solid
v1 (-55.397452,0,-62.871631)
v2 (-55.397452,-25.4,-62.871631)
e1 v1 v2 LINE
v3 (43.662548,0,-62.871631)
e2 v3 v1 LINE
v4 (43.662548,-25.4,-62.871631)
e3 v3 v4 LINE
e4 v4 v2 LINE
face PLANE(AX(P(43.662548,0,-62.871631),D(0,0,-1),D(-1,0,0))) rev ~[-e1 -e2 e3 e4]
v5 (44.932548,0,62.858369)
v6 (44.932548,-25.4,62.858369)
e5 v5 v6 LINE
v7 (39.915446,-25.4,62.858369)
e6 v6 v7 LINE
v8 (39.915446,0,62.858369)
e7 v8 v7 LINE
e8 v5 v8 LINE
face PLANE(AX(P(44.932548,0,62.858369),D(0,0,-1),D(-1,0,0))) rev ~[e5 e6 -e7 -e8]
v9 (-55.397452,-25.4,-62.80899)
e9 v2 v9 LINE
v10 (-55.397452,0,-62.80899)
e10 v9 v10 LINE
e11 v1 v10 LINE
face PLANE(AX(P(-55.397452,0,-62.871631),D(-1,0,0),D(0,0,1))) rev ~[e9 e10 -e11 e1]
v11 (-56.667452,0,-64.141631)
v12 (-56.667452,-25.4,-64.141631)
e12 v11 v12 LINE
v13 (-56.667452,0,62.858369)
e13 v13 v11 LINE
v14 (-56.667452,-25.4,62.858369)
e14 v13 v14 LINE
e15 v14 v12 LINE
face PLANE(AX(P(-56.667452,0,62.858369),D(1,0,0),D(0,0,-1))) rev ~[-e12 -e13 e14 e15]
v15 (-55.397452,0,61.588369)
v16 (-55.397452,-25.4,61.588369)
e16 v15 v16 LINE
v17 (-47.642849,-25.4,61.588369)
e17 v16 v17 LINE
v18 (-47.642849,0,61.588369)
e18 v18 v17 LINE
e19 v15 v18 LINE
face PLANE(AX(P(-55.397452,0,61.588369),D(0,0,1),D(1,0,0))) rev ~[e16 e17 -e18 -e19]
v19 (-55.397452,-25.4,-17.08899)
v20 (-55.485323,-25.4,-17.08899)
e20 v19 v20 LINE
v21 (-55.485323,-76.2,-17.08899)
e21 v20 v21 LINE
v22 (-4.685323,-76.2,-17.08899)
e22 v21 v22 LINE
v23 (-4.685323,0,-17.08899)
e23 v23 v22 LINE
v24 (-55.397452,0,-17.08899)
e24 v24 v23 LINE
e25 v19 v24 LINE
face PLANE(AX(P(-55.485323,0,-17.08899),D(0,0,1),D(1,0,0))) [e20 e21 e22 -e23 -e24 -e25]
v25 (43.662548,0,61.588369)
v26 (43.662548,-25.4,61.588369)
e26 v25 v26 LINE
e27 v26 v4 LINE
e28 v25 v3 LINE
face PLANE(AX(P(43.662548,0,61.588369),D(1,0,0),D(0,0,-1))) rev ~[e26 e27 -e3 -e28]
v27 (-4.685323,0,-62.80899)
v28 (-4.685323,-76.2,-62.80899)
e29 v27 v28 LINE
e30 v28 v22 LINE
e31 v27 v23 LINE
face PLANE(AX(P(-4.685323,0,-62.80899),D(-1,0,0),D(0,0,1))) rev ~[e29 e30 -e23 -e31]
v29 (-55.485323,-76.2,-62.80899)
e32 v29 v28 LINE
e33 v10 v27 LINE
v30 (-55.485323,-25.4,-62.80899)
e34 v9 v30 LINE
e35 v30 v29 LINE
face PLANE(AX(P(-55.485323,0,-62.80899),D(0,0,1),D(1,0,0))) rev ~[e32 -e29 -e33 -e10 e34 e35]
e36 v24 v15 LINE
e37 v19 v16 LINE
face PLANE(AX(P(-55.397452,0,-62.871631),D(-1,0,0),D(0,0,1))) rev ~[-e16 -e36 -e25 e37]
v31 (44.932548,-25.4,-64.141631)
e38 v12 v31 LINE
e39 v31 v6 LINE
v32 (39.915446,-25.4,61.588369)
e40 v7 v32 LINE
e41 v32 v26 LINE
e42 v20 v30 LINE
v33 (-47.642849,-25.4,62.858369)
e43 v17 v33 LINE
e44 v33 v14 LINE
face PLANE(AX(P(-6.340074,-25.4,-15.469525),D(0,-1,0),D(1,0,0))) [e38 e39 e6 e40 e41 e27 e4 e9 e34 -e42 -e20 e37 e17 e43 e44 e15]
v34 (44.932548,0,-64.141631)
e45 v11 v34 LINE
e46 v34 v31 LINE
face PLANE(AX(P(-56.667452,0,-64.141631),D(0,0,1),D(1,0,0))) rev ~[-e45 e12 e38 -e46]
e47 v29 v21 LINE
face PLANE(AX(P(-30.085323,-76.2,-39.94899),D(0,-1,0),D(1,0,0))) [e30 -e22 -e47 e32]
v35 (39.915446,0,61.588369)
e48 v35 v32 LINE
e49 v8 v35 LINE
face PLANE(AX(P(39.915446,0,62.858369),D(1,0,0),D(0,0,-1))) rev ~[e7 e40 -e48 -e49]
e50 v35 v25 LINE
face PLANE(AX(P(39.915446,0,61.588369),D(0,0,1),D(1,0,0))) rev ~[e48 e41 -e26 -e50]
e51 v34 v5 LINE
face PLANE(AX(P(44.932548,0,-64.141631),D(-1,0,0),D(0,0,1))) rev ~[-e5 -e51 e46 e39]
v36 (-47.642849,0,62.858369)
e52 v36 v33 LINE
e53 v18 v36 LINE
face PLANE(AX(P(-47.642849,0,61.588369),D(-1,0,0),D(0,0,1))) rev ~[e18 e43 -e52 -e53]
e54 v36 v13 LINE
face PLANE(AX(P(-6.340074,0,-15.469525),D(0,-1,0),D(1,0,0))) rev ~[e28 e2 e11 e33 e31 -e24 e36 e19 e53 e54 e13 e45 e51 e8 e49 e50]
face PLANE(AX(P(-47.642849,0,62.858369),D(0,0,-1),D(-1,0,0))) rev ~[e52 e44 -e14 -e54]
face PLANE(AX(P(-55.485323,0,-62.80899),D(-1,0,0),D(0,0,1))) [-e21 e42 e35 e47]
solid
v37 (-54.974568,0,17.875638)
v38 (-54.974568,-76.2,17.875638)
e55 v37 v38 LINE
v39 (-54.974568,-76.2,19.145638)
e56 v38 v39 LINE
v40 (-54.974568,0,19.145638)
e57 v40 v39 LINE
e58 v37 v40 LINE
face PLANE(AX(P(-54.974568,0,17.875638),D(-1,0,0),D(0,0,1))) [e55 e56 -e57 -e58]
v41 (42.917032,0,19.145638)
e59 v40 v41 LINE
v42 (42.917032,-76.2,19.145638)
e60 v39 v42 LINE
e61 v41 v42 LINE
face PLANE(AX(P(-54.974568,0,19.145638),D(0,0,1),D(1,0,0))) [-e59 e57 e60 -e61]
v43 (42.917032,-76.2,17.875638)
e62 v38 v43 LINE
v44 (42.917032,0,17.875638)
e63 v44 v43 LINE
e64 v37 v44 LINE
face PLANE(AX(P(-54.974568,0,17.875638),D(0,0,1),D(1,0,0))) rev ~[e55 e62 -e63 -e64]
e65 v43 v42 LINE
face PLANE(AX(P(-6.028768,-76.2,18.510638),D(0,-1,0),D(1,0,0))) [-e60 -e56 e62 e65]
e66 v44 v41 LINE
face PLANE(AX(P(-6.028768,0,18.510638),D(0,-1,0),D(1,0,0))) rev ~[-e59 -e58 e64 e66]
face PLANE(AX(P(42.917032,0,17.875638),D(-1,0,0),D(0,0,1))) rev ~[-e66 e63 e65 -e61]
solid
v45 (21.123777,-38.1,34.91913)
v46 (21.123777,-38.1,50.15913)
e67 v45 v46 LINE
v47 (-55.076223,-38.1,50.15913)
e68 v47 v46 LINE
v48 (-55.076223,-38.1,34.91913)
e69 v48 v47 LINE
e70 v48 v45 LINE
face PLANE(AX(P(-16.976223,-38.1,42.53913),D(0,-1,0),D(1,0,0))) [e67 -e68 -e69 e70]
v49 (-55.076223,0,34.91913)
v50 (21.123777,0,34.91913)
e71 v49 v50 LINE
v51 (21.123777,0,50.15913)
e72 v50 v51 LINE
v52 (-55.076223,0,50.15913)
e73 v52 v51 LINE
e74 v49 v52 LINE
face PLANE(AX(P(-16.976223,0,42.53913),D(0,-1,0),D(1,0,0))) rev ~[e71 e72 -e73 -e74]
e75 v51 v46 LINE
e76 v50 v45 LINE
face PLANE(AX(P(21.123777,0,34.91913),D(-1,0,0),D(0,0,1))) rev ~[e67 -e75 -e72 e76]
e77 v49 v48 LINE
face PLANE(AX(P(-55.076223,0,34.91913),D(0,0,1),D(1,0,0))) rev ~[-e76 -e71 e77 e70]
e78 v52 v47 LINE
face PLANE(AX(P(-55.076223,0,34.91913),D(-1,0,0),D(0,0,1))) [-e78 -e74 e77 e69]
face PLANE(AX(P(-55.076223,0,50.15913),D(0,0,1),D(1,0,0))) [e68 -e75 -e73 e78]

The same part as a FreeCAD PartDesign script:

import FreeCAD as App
import Part
import Sketcher
from FreeCAD import Vector
Q = App.Units.Quantity


def add_polygon(sketch, points):
    """Adds a closed chain of lines whose ends are joined by coincident constraints."""
    first, n = sketch.GeometryCount, len(points)
    for a, b in zip(points, points[1:] + points[:1]):
        sketch.addGeometry(Part.LineSegment(App.Vector(*a, 0), App.Vector(*b, 0)), False)
    for i in range(n):
        sketch.addConstraint(Sketcher.Constraint("Coincident", first + i, 2, first + (i + 1) % n, 1))

doc = App.newDocument("Part")
body = doc.addObject("PartDesign::Body", "Body")

# Sketch on XZ plane
sketch1 = body.newObject("Sketcher::SketchObject", "Sketch")
sketch1.AttachmentSupport = (doc.getObject("XZ_Plane"), [""])
sketch1.MapMode = "FlatFace"
add_polygon(sketch1, [(-47.6, 62.9), (-56.7, 62.9), (-56.7, -64.1), (44.9, -64.1), (44.9, 62.9), (39.9, 62.9), (39.9, 61.6), (43.7, 61.6), (43.7, -62.9), (-55.4, -62.9), (-55.4, 61.6), (-47.6, 61.6)])  # lines 0-11
sketch1.addConstraint([
    Sketcher.Constraint("Horizontal", 0),
    Sketcher.Constraint("Vertical", 1),
    Sketcher.Constraint("Horizontal", 2),
    Sketcher.Constraint("Vertical", 3),
    Sketcher.Constraint("Horizontal", 4),
    Sketcher.Constraint("Vertical", 5),
    Sketcher.Constraint("Horizontal", 6),
    Sketcher.Constraint("Vertical", 7),
    Sketcher.Constraint("Horizontal", 8),
    Sketcher.Constraint("Vertical", 9),
    Sketcher.Constraint("Horizontal", 10),
    Sketcher.Constraint("Vertical", 11),
    Sketcher.Constraint("Horizontal", 0, 2, 3, 2),
    Sketcher.Constraint("Horizontal", 6, 2, 9, 2),
    Sketcher.Constraint("DistanceX", 2, 1, 2, 2, Q("4 in")),
    Sketcher.Constraint("DistanceY", 1, 2, 1, 1, Q("5 in")),
    Sketcher.Constraint("DistanceX", 8, 2, 8, 1, Q("3.9 in")),
    Sketcher.Constraint("DistanceY", 7, 2, 7, 1, Q("4.9 in")),
    Sketcher.Constraint("DistanceY", 5, 2, 5, 1, Q("0.05 in")),
    Sketcher.Constraint("DistanceX", 6, 2, 3, 2, Q("0.05 in")),
    Sketcher.Constraint("DistanceX", 4, 2, 4, 1, 5.017102),
    Sketcher.Constraint("DistanceX", 0, 2, 0, 1, 9.024603),
    Sketcher.Constraint("DistanceX", 0, 2, -1, 1, 56.667452),
    Sketcher.Constraint("DistanceY", -1, 1, 0, 2, 62.858369),
])
pad1 = body.newObject("PartDesign::Pad", "Pad")
pad1.Profile = sketch1
pad1.Length = Q("1 in")

# Sketch on XZ plane
sketch2 = body.newObject("Sketcher::SketchObject", "Sketch001")
sketch2.AttachmentSupport = (doc.getObject("XZ_Plane"), [""])
sketch2.MapMode = "FlatFace"
add_polygon(sketch2, [(-55, -17), (-55, -63), (-5, -63), (-5, -17)])  # lines 0-3
sketch2.addConstraint([
    Sketcher.Constraint("Vertical", 0),
    Sketcher.Constraint("Horizontal", 1),
    Sketcher.Constraint("Vertical", 2),
    Sketcher.Constraint("Horizontal", 3),
    Sketcher.Constraint("DistanceX", 1, 1, 1, 2, Q("2 in")),
    Sketcher.Constraint("DistanceY", 0, 2, 0, 1, Q("1.8 in")),
    Sketcher.Constraint("DistanceY", 0, 2, -1, 1, 62.80899),
    Sketcher.Constraint("DistanceX", 0, 2, -1, 1, 55.485323),
])
pad2 = body.newObject("PartDesign::Pad", "Pad001")
pad2.Profile = sketch2
pad2.Length = Q("3 in")
body2 = doc.addObject("PartDesign::Body", "Body001")

# Sketch on XZ plane
sketch3 = body2.newObject("Sketcher::SketchObject", "Sketch002")
sketch3.AttachmentSupport = (doc.getObject("XZ_Plane001"), [""])
sketch3.MapMode = "FlatFace"
add_polygon(sketch3, [(-55, 19.1), (-55, 17.9), (42.9, 17.9), (42.9, 19.1)])  # lines 0-3
sketch3.addConstraint([
    Sketcher.Constraint("Vertical", 0),
    Sketcher.Constraint("Horizontal", 1),
    Sketcher.Constraint("Vertical", 2),
    Sketcher.Constraint("Horizontal", 3),
    Sketcher.Constraint("DistanceY", 0, 2, 0, 1, Q("0.05 in")),
    Sketcher.Constraint("DistanceX", 1, 1, 1, 2, Q("3.854 in")),
    Sketcher.Constraint("DistanceY", -1, 1, 2, 2, 19.145638),
    Sketcher.Constraint("DistanceX", 0, 2, -1, 1, 54.974568),
])
pad3 = body2.newObject("PartDesign::Pad", "Pad002")
pad3.Profile = sketch3
pad3.Length = Q("3 in")
body3 = doc.addObject("PartDesign::Body", "Body002")

# Sketch on XZ plane
sketch4 = body3.newObject("Sketcher::SketchObject", "Sketch003")
sketch4.AttachmentSupport = (doc.getObject("XZ_Plane002"), [""])
sketch4.MapMode = "FlatFace"
add_polygon(sketch4, [(-55, 50), (-55, 35), (21, 35), (21, 50)])  # lines 0-3
sketch4.addConstraint([
    Sketcher.Constraint("Vertical", 0),
    Sketcher.Constraint("Horizontal", 1),
    Sketcher.Constraint("Vertical", 2),
    Sketcher.Constraint("Horizontal", 3),
    Sketcher.Constraint("DistanceX", 1, 1, 1, 2, Q("3 in")),
    Sketcher.Constraint("DistanceY", 0, 2, 0, 1, Q("0.6 in")),
    Sketcher.Constraint("DistanceY", -1, 1, 0, 2, 34.91913),
    Sketcher.Constraint("DistanceX", 0, 2, -1, 1, 55.076223),
])
pad4 = body3.newObject("PartDesign::Pad", "Pad003")
pad4.Profile = sketch4
pad4.Length = Q("1.5 in")

doc.recompute()
